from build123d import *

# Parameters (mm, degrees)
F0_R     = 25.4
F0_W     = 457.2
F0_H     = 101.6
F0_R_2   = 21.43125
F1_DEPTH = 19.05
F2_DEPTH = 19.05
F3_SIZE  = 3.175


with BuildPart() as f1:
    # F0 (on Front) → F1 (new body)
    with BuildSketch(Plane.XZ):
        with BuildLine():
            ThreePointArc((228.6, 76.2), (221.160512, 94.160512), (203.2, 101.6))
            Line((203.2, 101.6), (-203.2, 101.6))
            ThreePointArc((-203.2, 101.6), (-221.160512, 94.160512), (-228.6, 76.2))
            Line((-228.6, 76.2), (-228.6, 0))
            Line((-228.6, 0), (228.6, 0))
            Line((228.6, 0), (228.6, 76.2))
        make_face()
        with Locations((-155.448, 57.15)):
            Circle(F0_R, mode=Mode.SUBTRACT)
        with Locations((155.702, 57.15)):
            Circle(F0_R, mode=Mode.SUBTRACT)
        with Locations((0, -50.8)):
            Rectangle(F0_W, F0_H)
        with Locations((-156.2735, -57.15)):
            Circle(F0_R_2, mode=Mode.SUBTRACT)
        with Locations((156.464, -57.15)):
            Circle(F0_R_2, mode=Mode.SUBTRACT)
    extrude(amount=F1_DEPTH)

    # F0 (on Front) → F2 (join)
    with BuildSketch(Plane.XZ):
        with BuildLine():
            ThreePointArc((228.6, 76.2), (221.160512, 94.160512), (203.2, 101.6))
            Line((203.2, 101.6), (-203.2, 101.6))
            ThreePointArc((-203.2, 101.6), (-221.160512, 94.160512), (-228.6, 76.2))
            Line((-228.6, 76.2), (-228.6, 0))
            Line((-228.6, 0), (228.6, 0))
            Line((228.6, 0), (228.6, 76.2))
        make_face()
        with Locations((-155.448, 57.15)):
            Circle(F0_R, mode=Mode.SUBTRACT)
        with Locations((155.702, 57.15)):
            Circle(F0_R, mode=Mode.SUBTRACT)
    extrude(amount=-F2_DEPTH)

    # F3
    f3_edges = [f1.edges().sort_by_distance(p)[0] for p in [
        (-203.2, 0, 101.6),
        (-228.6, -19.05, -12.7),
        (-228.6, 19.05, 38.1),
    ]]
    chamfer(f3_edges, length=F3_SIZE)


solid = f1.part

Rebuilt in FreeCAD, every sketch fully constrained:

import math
import FreeCAD as App
import Part
import Sketcher
from FreeCAD import Vector
Q = App.Units.Quantity


def edges_at(feature, points):
    """Names of the edges that pass closest to the given points."""
    edges = feature.Shape.Edges
    near = lambda p: min(range(len(edges)), key=lambda i: edges[i].distToShape(Part.Vertex(*p))[0])
    return sorted({f"Edge{near(p) + 1}" for p in points})

doc = App.newDocument("Part")
body = doc.addObject("PartDesign::Body", "Body")

# Sketch on XZ plane
sketch1 = doc.addObject("Sketcher::SketchObject", "Sketch")
body.addObject(sketch1)
sketch1.AttachmentSupport = (doc.XZ_Plane, [""])
sketch1.MapMode = "FlatFace"
sketch1.addGeometry(Part.ArcOfCircle(Part.Circle(Vector(203.199999, 76.199999, 0), Vector(0, 0, 1), 25.400001), math.radians(0.000002), math.radians(89.999998)), False)
sketch1.addGeometry(Part.LineSegment(Vector(203.2, 101.6, 0), Vector(-203.2, 101.6, 0)), False)
sketch1.addGeometry(Part.ArcOfCircle(Part.Circle(Vector(-203.199999, 76.199999, 0), Vector(0, 0, 1), 25.400001), math.radians(90.000002), math.radians(179.999998)), False)
sketch1.addGeometry(Part.LineSegment(Vector(-228.6, 76.2, 0), Vector(-228.6, -101.6, 0)), False)
sketch1.addGeometry(Part.LineSegment(Vector(-228.6, -101.6, 0), Vector(228.6, -101.6, 0)), False)
sketch1.addGeometry(Part.LineSegment(Vector(228.6, -101.6, 0), Vector(228.6, 76.2, 0)), False)
sketch1.addGeometry(Part.Circle(Vector(-156.2735, -57.15, 0), Vector(0, 0, 1), 21.43125), False)
sketch1.addGeometry(Part.Circle(Vector(156.464, -57.15, 0), Vector(0, 0, 1), 21.43125), False)
sketch1.addGeometry(Part.Circle(Vector(-155.448, 57.15, 0), Vector(0, 0, 1), 25.4), False)
sketch1.addGeometry(Part.Circle(Vector(155.702, 57.15, 0), Vector(0, 0, 1), 25.4), False)
sketch1.addConstraint(Sketcher.Constraint("Tangent", 0, 2, 1, 1))
sketch1.addConstraint(Sketcher.Constraint("Tangent", 1, 2, 2, 1))
sketch1.addConstraint(Sketcher.Constraint("Tangent", 2, 2, 3, 1))
sketch1.addConstraint(Sketcher.Constraint("Coincident", 3, 2, 4, 1))
sketch1.addConstraint(Sketcher.Constraint("Coincident", 4, 2, 5, 1))
sketch1.addConstraint(Sketcher.Constraint("Tangent", 5, 2, 0, 1))
sketch1.addConstraint(Sketcher.Constraint("Horizontal", 1))
sketch1.addConstraint(Sketcher.Constraint("Vertical", 3))
sketch1.addConstraint(Sketcher.Constraint("Horizontal", 4))
sketch1.addConstraint(Sketcher.Constraint("Vertical", 5))
sketch1.addConstraint(Sketcher.Constraint("Equal", 0, 2))
sketch1.addConstraint(Sketcher.Constraint("Equal", 6, 7))
sketch1.addConstraint(Sketcher.Constraint("Equal", 2, 8))
sketch1.addConstraint(Sketcher.Constraint("Equal", 8, 9))
sketch1.addConstraint(Sketcher.Constraint("Horizontal", 6, 3, 7, 3))
sketch1.addConstraint(Sketcher.Constraint("Horizontal", 8, 3, 9, 3))
sketch1.addConstraint(Sketcher.Constraint("Diameter", 8, Q("2 in")))
sketch1.addConstraint(Sketcher.Constraint("DistanceX", 1, 2, 1, 1, Q("16 in")))
sketch1.addConstraint(Sketcher.Constraint("DistanceY", 3, 2, 3, 1, Q("7 in")))
sketch1.addConstraint(Sketcher.Constraint("Diameter", 6, Q("1.6875 in")))
sketch1.addConstraint(Sketcher.Constraint("DistanceX", -1, 1, 0, 3, Q("8 in")))
sketch1.addConstraint(Sketcher.Constraint("DistanceY", -1, 1, 0, 3, Q("3 in")))
sketch1.addConstraint(Sketcher.Constraint("DistanceY", 6, 3, 8, 3, Q("4.5 in")))
sketch1.addConstraint(Sketcher.Constraint("DistanceY", 6, 3, -1, 1, Q("2.25 in")))
sketch1.addConstraint(Sketcher.Constraint("DistanceX", -1, 1, 7, 3, Q("6.16 in")))
sketch1.addConstraint(Sketcher.Constraint("DistanceX", 8, 3, -1, 1, Q("6.12 in")))
sketch1.addConstraint(Sketcher.Constraint("DistanceX", -1, 1, 9, 3, Q("6.13 in")))
sketch1.addConstraint(Sketcher.Constraint("DistanceX", 6, 3, 7, 3, Q("12.3125 in")))
pad1 = doc.addObject("PartDesign::Pad", "Pad")
body.addObject(pad1)
pad1.Profile = sketch1
pad1.Length = Q("0.75 in")

# Sketch on XZ plane
sketch2 = doc.addObject("Sketcher::SketchObject", "Sketch001")
body.addObject(sketch2)
sketch2.AttachmentSupport = (doc.XZ_Plane, [""])
sketch2.MapMode = "FlatFace"
sketch2.addGeometry(Part.ArcOfCircle(Part.Circle(Vector(203.199999, 76.199999, 0), Vector(0, 0, 1), 25.400001), math.radians(0.000002), math.radians(89.999998)), False)
sketch2.addGeometry(Part.LineSegment(Vector(203.2, 101.6, 0), Vector(-203.2, 101.6, 0)), False)
sketch2.addGeometry(Part.ArcOfCircle(Part.Circle(Vector(-203.199999, 76.199999, 0), Vector(0, 0, 1), 25.400001), math.radians(90.000002), math.radians(179.999998)), False)
sketch2.addGeometry(Part.LineSegment(Vector(-228.6, 76.2, 0), Vector(-228.6, 0, 0)), False)
sketch2.addGeometry(Part.LineSegment(Vector(-228.6, 0, 0), Vector(228.6, 0, 0)), False)
sketch2.addGeometry(Part.LineSegment(Vector(228.6, 0, 0), Vector(228.6, 76.2, 0)), False)
sketch2.addGeometry(Part.Circle(Vector(-155.448, 57.15, 0), Vector(0, 0, 1), 25.4), False)
sketch2.addGeometry(Part.Circle(Vector(155.702, 57.15, 0), Vector(0, 0, 1), 25.4), False)
sketch2.addConstraint(Sketcher.Constraint("Tangent", 0, 2, 1, 1))
sketch2.addConstraint(Sketcher.Constraint("Tangent", 1, 2, 2, 1))
sketch2.addConstraint(Sketcher.Constraint("Tangent", 2, 2, 3, 1))
sketch2.addConstraint(Sketcher.Constraint("Coincident", 3, 2, 4, 1))
sketch2.addConstraint(Sketcher.Constraint("Coincident", 4, 2, 5, 1))
sketch2.addConstraint(Sketcher.Constraint("Tangent", 5, 2, 0, 1))
sketch2.addConstraint(Sketcher.Constraint("Horizontal", 1))
sketch2.addConstraint(Sketcher.Constraint("Vertical", 3))
sketch2.addConstraint(Sketcher.Constraint("Horizontal", 4))
sketch2.addConstraint(Sketcher.Constraint("Vertical", 5))
sketch2.addConstraint(Sketcher.Constraint("Equal", 0, 2))
sketch2.addConstraint(Sketcher.Constraint("Equal", 2, 6))
sketch2.addConstraint(Sketcher.Constraint("Equal", 6, 7))
sketch2.addConstraint(Sketcher.Constraint("Symmetric", 3, 2, 4, 2, -1, 1))
sketch2.addConstraint(Sketcher.Constraint("Horizontal", 6, 3, 7, 3))
sketch2.addConstraint(Sketcher.Constraint("Diameter", 6, Q("2 in")))
sketch2.addConstraint(Sketcher.Constraint("DistanceX", 1, 2, 1, 1, Q("16 in")))
sketch2.addConstraint(Sketcher.Constraint("DistanceY", 3, 2, 3, 1, Q("3 in")))
sketch2.addConstraint(Sketcher.Constraint("DistanceX", 6, 3, -1, 1, Q("6.12 in")))
sketch2.addConstraint(Sketcher.Constraint("DistanceY", -1, 1, 6, 3, Q("2.25 in")))
sketch2.addConstraint(Sketcher.Constraint("DistanceX", -1, 1, 7, 3, Q("6.13 in")))
pad2 = doc.addObject("PartDesign::Pad", "Pad001")
body.addObject(pad2)
pad2.Profile = sketch2
pad2.Length = Q("0.75 in")
pad2.Reversed = True
doc.recompute()

chamfer = doc.addObject("PartDesign::Chamfer", "Chamfer")
body.addObject(chamfer)
chamfer.Base = (pad2, edges_at(pad2, [(-203.2, 0, 101.6), (-228.6, -19.05, -12.7), (-228.6, 19.05, 38.1)]))
chamfer.Size = Q("0.125 in")

doc.recompute()
